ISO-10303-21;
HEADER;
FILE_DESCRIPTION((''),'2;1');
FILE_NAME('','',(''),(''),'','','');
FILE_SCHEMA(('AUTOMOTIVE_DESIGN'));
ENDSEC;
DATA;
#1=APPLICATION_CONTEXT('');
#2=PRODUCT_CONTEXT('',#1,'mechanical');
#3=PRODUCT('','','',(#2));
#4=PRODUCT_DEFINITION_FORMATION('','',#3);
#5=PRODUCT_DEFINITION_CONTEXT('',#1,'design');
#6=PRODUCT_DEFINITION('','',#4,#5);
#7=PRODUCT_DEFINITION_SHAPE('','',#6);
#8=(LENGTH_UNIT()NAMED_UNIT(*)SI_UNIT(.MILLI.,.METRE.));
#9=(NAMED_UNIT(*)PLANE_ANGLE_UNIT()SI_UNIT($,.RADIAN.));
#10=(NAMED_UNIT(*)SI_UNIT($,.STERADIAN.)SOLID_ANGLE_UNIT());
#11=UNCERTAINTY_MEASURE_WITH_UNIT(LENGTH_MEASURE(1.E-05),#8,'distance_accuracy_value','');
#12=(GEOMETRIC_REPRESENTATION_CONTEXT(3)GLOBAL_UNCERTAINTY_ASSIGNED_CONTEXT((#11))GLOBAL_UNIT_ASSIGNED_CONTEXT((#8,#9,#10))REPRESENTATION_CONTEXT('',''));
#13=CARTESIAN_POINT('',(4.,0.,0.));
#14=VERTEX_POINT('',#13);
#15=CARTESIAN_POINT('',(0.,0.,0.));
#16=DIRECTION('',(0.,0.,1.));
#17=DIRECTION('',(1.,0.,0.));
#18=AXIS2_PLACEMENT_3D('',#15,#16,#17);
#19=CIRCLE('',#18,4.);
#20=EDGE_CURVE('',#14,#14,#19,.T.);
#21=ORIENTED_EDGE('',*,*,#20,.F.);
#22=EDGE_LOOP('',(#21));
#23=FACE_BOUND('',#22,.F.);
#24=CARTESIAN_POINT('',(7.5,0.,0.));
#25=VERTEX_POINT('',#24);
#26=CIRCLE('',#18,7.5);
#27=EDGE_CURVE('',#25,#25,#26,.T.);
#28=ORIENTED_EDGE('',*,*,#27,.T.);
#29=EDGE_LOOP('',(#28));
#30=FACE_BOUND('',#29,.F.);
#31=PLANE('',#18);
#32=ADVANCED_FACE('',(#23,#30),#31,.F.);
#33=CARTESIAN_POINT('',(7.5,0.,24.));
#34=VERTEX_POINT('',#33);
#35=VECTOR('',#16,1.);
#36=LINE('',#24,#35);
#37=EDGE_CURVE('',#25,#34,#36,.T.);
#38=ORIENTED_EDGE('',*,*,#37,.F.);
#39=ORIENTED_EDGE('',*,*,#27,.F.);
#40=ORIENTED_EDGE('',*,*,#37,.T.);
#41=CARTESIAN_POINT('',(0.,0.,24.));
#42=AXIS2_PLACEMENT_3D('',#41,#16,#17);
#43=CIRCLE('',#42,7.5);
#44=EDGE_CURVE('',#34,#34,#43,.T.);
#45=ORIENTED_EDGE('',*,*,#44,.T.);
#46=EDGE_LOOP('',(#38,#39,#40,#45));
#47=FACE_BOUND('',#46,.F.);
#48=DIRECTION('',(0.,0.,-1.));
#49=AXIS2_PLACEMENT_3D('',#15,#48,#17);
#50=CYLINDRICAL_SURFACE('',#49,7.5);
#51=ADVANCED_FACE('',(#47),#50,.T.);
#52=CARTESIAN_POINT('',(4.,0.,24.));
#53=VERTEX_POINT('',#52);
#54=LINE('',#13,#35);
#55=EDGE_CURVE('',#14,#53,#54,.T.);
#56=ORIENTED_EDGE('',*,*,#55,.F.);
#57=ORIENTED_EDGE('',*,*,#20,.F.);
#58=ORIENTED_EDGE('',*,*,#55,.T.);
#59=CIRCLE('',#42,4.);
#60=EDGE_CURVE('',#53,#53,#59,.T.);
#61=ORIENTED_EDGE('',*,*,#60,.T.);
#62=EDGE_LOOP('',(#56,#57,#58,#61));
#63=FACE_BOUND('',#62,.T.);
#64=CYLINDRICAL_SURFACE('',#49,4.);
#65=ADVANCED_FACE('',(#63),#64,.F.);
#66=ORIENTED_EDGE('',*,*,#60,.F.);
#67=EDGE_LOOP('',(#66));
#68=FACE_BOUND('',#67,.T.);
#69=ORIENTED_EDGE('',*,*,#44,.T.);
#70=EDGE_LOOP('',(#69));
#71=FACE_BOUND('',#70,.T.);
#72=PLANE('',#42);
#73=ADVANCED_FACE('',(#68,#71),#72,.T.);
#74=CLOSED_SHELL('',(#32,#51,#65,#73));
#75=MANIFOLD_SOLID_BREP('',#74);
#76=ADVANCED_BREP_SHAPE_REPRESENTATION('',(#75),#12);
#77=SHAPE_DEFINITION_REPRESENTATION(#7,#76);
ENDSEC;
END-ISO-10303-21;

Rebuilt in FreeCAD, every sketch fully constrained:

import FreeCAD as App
import Part
import Sketcher
from FreeCAD import Vector
Q = App.Units.Quantity

doc = App.newDocument("Part")
body = doc.addObject("PartDesign::Body", "Body")

sketch1 = body.newObject("Sketcher::SketchObject", "Sketch")
sketch1.AttachmentSupport = (doc.getObject("XY_Plane"), [""])
sketch1.MapMode = "FlatFace"
sketch1.addGeometry([
    Part.Circle(Vector(0, 0, 0), Vector(0, 0, 1), 7.5),
    Part.Circle(Vector(0, 0, 0), Vector(0, 0, 1), 4),
], False)
sketch1.addConstraint([
    Sketcher.Constraint("Coincident", 0, 3, -1, 1),
    Sketcher.Constraint("Coincident", 1, 3, -1, 1),
    Sketcher.Constraint("Diameter", 0, Q("15 mm")),
    Sketcher.Constraint("Diameter", 1, Q("8 mm")),
])
pad1 = body.newObject("PartDesign::Pad", "Pad")
pad1.Profile = sketch1
pad1.Length = 24

doc.recompute()
